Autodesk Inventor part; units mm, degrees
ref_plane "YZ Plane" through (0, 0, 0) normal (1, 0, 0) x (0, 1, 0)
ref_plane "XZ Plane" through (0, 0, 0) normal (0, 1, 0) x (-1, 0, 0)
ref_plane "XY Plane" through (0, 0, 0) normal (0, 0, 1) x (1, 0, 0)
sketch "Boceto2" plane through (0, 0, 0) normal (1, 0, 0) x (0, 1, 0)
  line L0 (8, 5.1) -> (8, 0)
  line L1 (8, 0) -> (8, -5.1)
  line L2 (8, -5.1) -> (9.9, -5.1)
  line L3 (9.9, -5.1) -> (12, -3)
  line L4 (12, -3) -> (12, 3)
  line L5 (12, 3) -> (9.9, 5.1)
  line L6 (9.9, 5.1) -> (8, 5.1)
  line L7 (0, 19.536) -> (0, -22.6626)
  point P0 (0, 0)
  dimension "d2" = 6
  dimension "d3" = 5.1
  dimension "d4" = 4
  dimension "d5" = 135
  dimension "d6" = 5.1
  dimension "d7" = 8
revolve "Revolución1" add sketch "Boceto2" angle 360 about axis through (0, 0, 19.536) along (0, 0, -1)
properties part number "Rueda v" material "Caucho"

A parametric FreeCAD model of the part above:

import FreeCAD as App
import Part
import Sketcher

V = App.Vector


def add_polygon(sketch, points):
    """Adds a closed chain of lines whose ends are joined by coincident constraints."""
    first, n = sketch.GeometryCount, len(points)
    for a, b in zip(points, points[1:] + points[:1]):
        sketch.addGeometry(Part.LineSegment(App.Vector(*a, 0), App.Vector(*b, 0)), False)
    for i in range(n):
        sketch.addConstraint(Sketcher.Constraint("Coincident", first + i, 2, first + (i + 1) % n, 1))

doc = App.newDocument("Part")
body = doc.addObject("PartDesign::Body", "Body")

sketch1 = doc.addObject("Sketcher::SketchObject", "Sketch")
body.addObject(sketch1)
sketch1.AttachmentSupport = (doc.YZ_Plane, [""])
sketch1.MapMode = "FlatFace"
add_polygon(sketch1, [(9.9, 5.1), (8, 5.1), (8, -5.1), (9.9, -5.1), (12, -3), (12, 3)])
sketch1.addConstraint([
    Sketcher.Constraint("Horizontal", 0),
    Sketcher.Constraint("Vertical", 1),
    Sketcher.Constraint("Horizontal", 2),
    Sketcher.Constraint("Vertical", 4),
    Sketcher.Constraint("Symmetric", 2, 2, 5, 2, -1),
    Sketcher.Constraint("Perpendicular", 3, 5),
    Sketcher.Constraint("Equal", 3, 5),
    Sketcher.Constraint("DistanceY", 4, 1, 4, 2, 6.0),
    Sketcher.Constraint("DistanceX", -1, 1, 0, 2, 8.0),
    Sketcher.Constraint("DistanceX", 1, 2, 3, 2, 4.0),
    Sketcher.Constraint("DistanceY", -1, 1, 0, 2, 5.1),
])
revolution = doc.addObject("PartDesign::Revolution", "Revolution")
body.addObject(revolution)
revolution.Profile = sketch1
revolution.ReferenceAxis = (sketch1, ["V_Axis"])
revolution.Angle = 360

doc.recompute()
